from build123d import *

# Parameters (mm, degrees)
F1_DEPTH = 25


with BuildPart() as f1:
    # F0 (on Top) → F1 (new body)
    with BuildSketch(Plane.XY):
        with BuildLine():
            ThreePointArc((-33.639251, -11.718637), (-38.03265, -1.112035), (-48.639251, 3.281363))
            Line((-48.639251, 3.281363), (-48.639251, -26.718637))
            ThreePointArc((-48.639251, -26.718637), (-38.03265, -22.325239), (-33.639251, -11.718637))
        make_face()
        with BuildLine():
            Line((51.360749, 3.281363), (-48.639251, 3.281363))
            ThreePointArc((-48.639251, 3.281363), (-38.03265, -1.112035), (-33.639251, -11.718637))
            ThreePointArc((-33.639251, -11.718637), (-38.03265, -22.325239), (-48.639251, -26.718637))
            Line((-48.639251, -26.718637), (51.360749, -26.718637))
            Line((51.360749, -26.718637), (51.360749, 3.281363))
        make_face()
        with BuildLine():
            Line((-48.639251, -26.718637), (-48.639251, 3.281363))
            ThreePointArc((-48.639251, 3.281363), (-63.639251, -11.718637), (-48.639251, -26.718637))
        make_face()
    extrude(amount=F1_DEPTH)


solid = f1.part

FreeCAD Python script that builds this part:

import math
import FreeCAD as App
import Part
import Sketcher
from FreeCAD import Vector
Q = App.Units.Quantity

doc = App.newDocument("Part")
body = doc.addObject("PartDesign::Body", "Body")

sketch1 = doc.addObject("Sketcher::SketchObject", "Sketch")
body.addObject(sketch1)
sketch1.AttachmentSupport = (doc.XY_Plane, [""])
sketch1.MapMode = "FlatFace"
sketch1.addGeometry(Part.LineSegment(Vector(-49, -27, 0), Vector(51, -27, 0)), False)
sketch1.addGeometry(Part.LineSegment(Vector(51, -27, 0), Vector(51, 3, 0)), False)
sketch1.addGeometry(Part.LineSegment(Vector(51, 3, 0), Vector(-49, 3, 0)), False)
sketch1.addGeometry(Part.ArcOfCircle(Part.Circle(Vector(-49, -12, 0), Vector(0, 0, 1), 15), math.radians(90), math.radians(270)), False)
sketch1.addConstraint(Sketcher.Constraint("Coincident", 0, 2, 1, 1))
sketch1.addConstraint(Sketcher.Constraint("Coincident", 1, 2, 2, 1))
sketch1.addConstraint(Sketcher.Constraint("Tangent", 2, 2, 3, 1))
sketch1.addConstraint(Sketcher.Constraint("Tangent", 3, 2, 0, 1))
sketch1.addConstraint(Sketcher.Constraint("Horizontal", 0))
sketch1.addConstraint(Sketcher.Constraint("Vertical", 1))
sketch1.addConstraint(Sketcher.Constraint("Horizontal", 2))
sketch1.addConstraint(Sketcher.Constraint("Radius", 3, Q("15 mm")))
sketch1.addConstraint(Sketcher.Constraint("DistanceX", 0, 1, 0, 2, Q("100 mm")))
sketch1.addConstraint(Sketcher.Constraint("DistanceX", 3, 3, -1, 1, Q("48.639251 mm")))
sketch1.addConstraint(Sketcher.Constraint("DistanceY", 3, 3, -1, 1, Q("11.718637 mm")))
pad1 = doc.addObject("PartDesign::Pad", "Pad")
body.addObject(pad1)
pad1.Profile = sketch1
pad1.Length = 25

doc.recompute()
